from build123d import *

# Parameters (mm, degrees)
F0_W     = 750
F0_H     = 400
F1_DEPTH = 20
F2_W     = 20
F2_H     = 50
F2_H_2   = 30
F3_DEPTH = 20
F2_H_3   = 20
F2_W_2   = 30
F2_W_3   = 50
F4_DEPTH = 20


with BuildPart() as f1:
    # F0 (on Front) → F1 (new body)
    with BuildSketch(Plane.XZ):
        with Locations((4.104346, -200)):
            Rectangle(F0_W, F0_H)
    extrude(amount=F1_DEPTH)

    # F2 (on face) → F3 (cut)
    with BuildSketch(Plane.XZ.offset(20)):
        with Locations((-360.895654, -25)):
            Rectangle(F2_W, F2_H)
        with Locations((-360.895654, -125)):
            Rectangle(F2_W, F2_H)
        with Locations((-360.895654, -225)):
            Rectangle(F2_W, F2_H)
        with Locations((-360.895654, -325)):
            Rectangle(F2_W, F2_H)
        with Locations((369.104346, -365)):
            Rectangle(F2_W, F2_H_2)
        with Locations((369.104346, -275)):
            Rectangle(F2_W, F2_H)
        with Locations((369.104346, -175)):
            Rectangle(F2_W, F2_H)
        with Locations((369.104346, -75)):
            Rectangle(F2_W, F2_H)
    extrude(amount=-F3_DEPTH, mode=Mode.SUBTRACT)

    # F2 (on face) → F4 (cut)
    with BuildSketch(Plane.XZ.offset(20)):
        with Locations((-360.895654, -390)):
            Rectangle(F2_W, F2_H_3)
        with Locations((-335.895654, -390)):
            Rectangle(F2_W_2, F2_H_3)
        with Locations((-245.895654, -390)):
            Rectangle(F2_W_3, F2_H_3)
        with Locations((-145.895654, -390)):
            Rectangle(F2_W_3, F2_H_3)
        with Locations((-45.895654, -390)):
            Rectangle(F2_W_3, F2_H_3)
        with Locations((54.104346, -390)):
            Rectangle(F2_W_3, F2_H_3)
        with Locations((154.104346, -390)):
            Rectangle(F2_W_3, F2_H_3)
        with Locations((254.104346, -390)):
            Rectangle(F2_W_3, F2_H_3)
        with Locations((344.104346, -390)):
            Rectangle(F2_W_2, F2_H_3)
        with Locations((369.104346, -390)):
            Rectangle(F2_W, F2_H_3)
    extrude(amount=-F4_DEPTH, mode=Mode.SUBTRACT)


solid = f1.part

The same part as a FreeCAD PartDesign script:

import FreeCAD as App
import Part
import Sketcher

V = App.Vector

doc = App.newDocument("Part")
body = doc.addObject("PartDesign::Body", "Body")

sketch1 = body.newObject("Sketcher::SketchObject", "Sketch")
sketch1.AttachmentSupport = (doc.getObject("XZ_Plane"), [""])
sketch1.MapMode = "FlatFace"
sketch1.addGeometry([
    Part.LineSegment(V(-371, 0, 0), V(-371, -400, 0)),
    Part.LineSegment(V(-371, -400, 0), V(379, -400, 0)),
    Part.LineSegment(V(379, -400, 0), V(379, 0, 0)),
    Part.LineSegment(V(379, 0, 0), V(-371, 0, 0)),
], False)
sketch1.addConstraint([
    Sketcher.Constraint("Coincident", 0, 2, 1, 1),
    Sketcher.Constraint("Coincident", 1, 2, 2, 1),
    Sketcher.Constraint("Coincident", 2, 2, 3, 1),
    Sketcher.Constraint("Coincident", 3, 2, 0, 1),
    Sketcher.Constraint("Vertical", 0),
    Sketcher.Constraint("Horizontal", 1),
    Sketcher.Constraint("Vertical", 2),
    Sketcher.Constraint("Horizontal", 3),
    Sketcher.Constraint("PointOnObject", 2, 2, -1),
    Sketcher.Constraint("DistanceX", 1, 1, 1, 2, 750.0),
    Sketcher.Constraint("DistanceY", 0, 2, 0, 1, 400.0),
    Sketcher.Constraint("DistanceX", 0, 2, -1, 1, 370.895654),
])
pad1 = body.newObject("PartDesign::Pad", "Pad")
pad1.Profile = sketch1
pad1.Length = 20

sketch2 = body.newObject("Sketcher::SketchObject", "Sketch001")
sketch2.AttachmentSupport = (doc.getObject("XZ_Plane"), [""])
sketch2.MapMode = "FlatFace"
sketch2.AttachmentOffset = App.Placement(V(0, 0, 20), App.Rotation())
sketch2.addGeometry([
    Part.LineSegment(V(-371, 0, 0), V(-371, -50, 0)),
    Part.LineSegment(V(-371, -50, 0), V(-351, -50, 0)),
    Part.LineSegment(V(-351, -50, 0), V(-351, 0, 0)),
    Part.LineSegment(V(-351, 0, 0), V(-371, 0, 0)),
    Part.LineSegment(V(-371, -100, 0), V(-371, -150, 0)),
    Part.LineSegment(V(-371, -150, 0), V(-351, -150, 0)),
    Part.LineSegment(V(-351, -150, 0), V(-351, -100, 0)),
    Part.LineSegment(V(-351, -100, 0), V(-371, -100, 0)),
    Part.LineSegment(V(-371, -200, 0), V(-371, -250, 0)),
    Part.LineSegment(V(-371, -250, 0), V(-351, -250, 0)),
    Part.LineSegment(V(-351, -250, 0), V(-351, -200, 0)),
    Part.LineSegment(V(-351, -200, 0), V(-371, -200, 0)),
    Part.LineSegment(V(-371, -300, 0), V(-371, -350, 0)),
    Part.LineSegment(V(-371, -350, 0), V(-351, -350, 0)),
    Part.LineSegment(V(-351, -350, 0), V(-351, -300, 0)),
    Part.LineSegment(V(-351, -300, 0), V(-371, -300, 0)),
    Part.LineSegment(V(359, -350, 0), V(359, -380, 0)),
    Part.LineSegment(V(359, -380, 0), V(379, -380, 0)),
    Part.LineSegment(V(379, -380, 0), V(379, -350, 0)),
    Part.LineSegment(V(379, -350, 0), V(359, -350, 0)),
    Part.LineSegment(V(359, -250, 0), V(359, -300, 0)),
    Part.LineSegment(V(359, -300, 0), V(379, -300, 0)),
    Part.LineSegment(V(379, -300, 0), V(379, -250, 0)),
    Part.LineSegment(V(379, -250, 0), V(359, -250, 0)),
    Part.LineSegment(V(359, -150, 0), V(359, -200, 0)),
    Part.LineSegment(V(359, -200, 0), V(379, -200, 0)),
    Part.LineSegment(V(379, -200, 0), V(379, -150, 0)),
    Part.LineSegment(V(379, -150, 0), V(359, -150, 0)),
    Part.LineSegment(V(359, -50, 0), V(359, -100, 0)),
    Part.LineSegment(V(359, -100, 0), V(379, -100, 0)),
    Part.LineSegment(V(379, -100, 0), V(379, -50, 0)),
    Part.LineSegment(V(379, -50, 0), V(359, -50, 0)),
], False)
sketch2.addConstraint([
    Sketcher.Constraint("Coincident", 0, 2, 1, 1),
    Sketcher.Constraint("Coincident", 1, 2, 2, 1),
    Sketcher.Constraint("Coincident", 2, 2, 3, 1),
    Sketcher.Constraint("Coincident", 3, 2, 0, 1),
    Sketcher.Constraint("Coincident", 4, 2, 5, 1),
    Sketcher.Constraint("Coincident", 5, 2, 6, 1),
    Sketcher.Constraint("Coincident", 6, 2, 7, 1),
    Sketcher.Constraint("Coincident", 7, 2, 4, 1),
    Sketcher.Constraint("Coincident", 8, 2, 9, 1),
    Sketcher.Constraint("Coincident", 9, 2, 10, 1),
    Sketcher.Constraint("Coincident", 10, 2, 11, 1),
    Sketcher.Constraint("Coincident", 11, 2, 8, 1),
    Sketcher.Constraint("Coincident", 12, 2, 13, 1),
    Sketcher.Constraint("Coincident", 13, 2, 14, 1),
    Sketcher.Constraint("Coincident", 14, 2, 15, 1),
    Sketcher.Constraint("Coincident", 15, 2, 12, 1),
    Sketcher.Constraint("Coincident", 16, 2, 17, 1),
    Sketcher.Constraint("Coincident", 17, 2, 18, 1),
    Sketcher.Constraint("Coincident", 18, 2, 19, 1),
    Sketcher.Constraint("Coincident", 19, 2, 16, 1),
    Sketcher.Constraint("Coincident", 20, 2, 21, 1),
    Sketcher.Constraint("Coincident", 21, 2, 22, 1),
    Sketcher.Constraint("Coincident", 22, 2, 23, 1),
    Sketcher.Constraint("Coincident", 23, 2, 20, 1),
    Sketcher.Constraint("Coincident", 24, 2, 25, 1),
    Sketcher.Constraint("Coincident", 25, 2, 26, 1),
    Sketcher.Constraint("Coincident", 26, 2, 27, 1),
    Sketcher.Constraint("Coincident", 27, 2, 24, 1),
    Sketcher.Constraint("Coincident", 28, 2, 29, 1),
    Sketcher.Constraint("Coincident", 29, 2, 30, 1),
    Sketcher.Constraint("Coincident", 30, 2, 31, 1),
    Sketcher.Constraint("Coincident", 31, 2, 28, 1),
    Sketcher.Constraint("Vertical", 0),
    Sketcher.Constraint("Horizontal", 1),
    Sketcher.Constraint("Vertical", 2),
    Sketcher.Constraint("Horizontal", 3),
    Sketcher.Constraint("Vertical", 4),
    Sketcher.Constraint("Horizontal", 5),
    Sketcher.Constraint("Vertical", 6),
    Sketcher.Constraint("Horizontal", 7),
    Sketcher.Constraint("Vertical", 8),
    Sketcher.Constraint("Horizontal", 9),
    Sketcher.Constraint("Vertical", 10),
    Sketcher.Constraint("Horizontal", 11),
    Sketcher.Constraint("Vertical", 12),
    Sketcher.Constraint("Horizontal", 13),
    Sketcher.Constraint("Vertical", 14),
    Sketcher.Constraint("Horizontal", 15),
    Sketcher.Constraint("Vertical", 16),
    Sketcher.Constraint("Horizontal", 17),
    Sketcher.Constraint("Vertical", 18),
    Sketcher.Constraint("Horizontal", 19),
    Sketcher.Constraint("Vertical", 20),
    Sketcher.Constraint("Horizontal", 21),
    Sketcher.Constraint("Vertical", 22),
    Sketcher.Constraint("Horizontal", 23),
    Sketcher.Constraint("Vertical", 24),
    Sketcher.Constraint("Horizontal", 25),
    Sketcher.Constraint("Vertical", 26),
    Sketcher.Constraint("Horizontal", 27),
    Sketcher.Constraint("Vertical", 28),
    Sketcher.Constraint("Horizontal", 29),
    Sketcher.Constraint("Vertical", 30),
    Sketcher.Constraint("Horizontal", 31),
    Sketcher.Constraint("PointOnObject", 2, 2, -1),
    Sketcher.Constraint("Horizontal", 13, 2, 18, 2),
    Sketcher.Constraint("Horizontal", 15, 2, 20, 2),
    Sketcher.Constraint("Horizontal", 9, 2, 22, 2),
    Sketcher.Constraint("Horizontal", 11, 2, 24, 2),
    Sketcher.Constraint("Horizontal", 5, 2, 26, 2),
    Sketcher.Constraint("Horizontal", 7, 2, 28, 2),
    Sketcher.Constraint("Horizontal", 1, 2, 30, 2),
    Sketcher.Constraint("Vertical", 3, 2, 4, 2),
    Sketcher.Constraint("Vertical", 2, 2, 5, 2),
    Sketcher.Constraint("Vertical", 7, 2, 8, 2),
    Sketcher.Constraint("Vertical", 6, 2, 9, 2),
    Sketcher.Constraint("Vertical", 11, 2, 12, 2),
    Sketcher.Constraint("Vertical", 10, 2, 13, 2),
    Sketcher.Constraint("Vertical", 19, 2, 20, 2),
    Sketcher.Constraint("Vertical", 18, 2, 21, 2),
    Sketcher.Constraint("Vertical", 23, 2, 24, 2),
    Sketcher.Constraint("Vertical", 22, 2, 25, 2),
    Sketcher.Constraint("Vertical", 27, 2, 28, 2),
    Sketcher.Constraint("Vertical", 26, 2, 29, 2),
    Sketcher.Constraint("Equal", 15, 17),
    Sketcher.Constraint("Equal", 2, 4),
    Sketcher.Constraint("Equal", 6, 8),
    Sketcher.Constraint("Equal", 10, 12),
    Sketcher.Constraint("Equal", 14, 20),
    Sketcher.Constraint("Equal", 22, 24),
    Sketcher.Constraint("Equal", 26, 28),
    Sketcher.Constraint("DistanceX", 1, 1, 1, 2, 20.0),
    Sketcher.Constraint("DistanceY", 0, 2, 0, 1, 50.0),
    Sketcher.Constraint("DistanceY", 16, 2, 16, 1, 30.0),
    Sketcher.Constraint("DistanceX", 13, 2, 16, 2, 710.0),
    Sketcher.Constraint("DistanceX", 0, 2, -1, 1, 370.895654),
])
pocket1 = body.newObject("PartDesign::Pocket", "Pocket")
pocket1.Profile = sketch2
pocket1.Length = 20

sketch3 = body.newObject("Sketcher::SketchObject", "Sketch002")
sketch3.AttachmentSupport = (doc.getObject("XZ_Plane"), [""])
sketch3.MapMode = "FlatFace"
sketch3.AttachmentOffset = App.Placement(V(0, 0, 20), App.Rotation())
sketch3.addGeometry([
    Part.LineSegment(V(-371, -380, 0), V(-371, -400, 0)),
    Part.LineSegment(V(-371, -400, 0), V(-321, -400, 0)),
    Part.LineSegment(V(-321, -400, 0), V(-321, -380, 0)),
    Part.LineSegment(V(-321, -380, 0), V(-371, -380, 0)),
    Part.LineSegment(V(-271, -380, 0), V(-271, -400, 0)),
    Part.LineSegment(V(-271, -400, 0), V(-221, -400, 0)),
    Part.LineSegment(V(-221, -400, 0), V(-221, -380, 0)),
    Part.LineSegment(V(-221, -380, 0), V(-271, -380, 0)),
    Part.LineSegment(V(-171, -380, 0), V(-171, -400, 0)),
    Part.LineSegment(V(-171, -400, 0), V(-121, -400, 0)),
    Part.LineSegment(V(-121, -400, 0), V(-121, -380, 0)),
    Part.LineSegment(V(-121, -380, 0), V(-171, -380, 0)),
    Part.LineSegment(V(-71, -380, 0), V(-71, -400, 0)),
    Part.LineSegment(V(-71, -400, 0), V(-21, -400, 0)),
    Part.LineSegment(V(-21, -400, 0), V(-21, -380, 0)),
    Part.LineSegment(V(-21, -380, 0), V(-71, -380, 0)),
    Part.LineSegment(V(29, -380, 0), V(29, -400, 0)),
    Part.LineSegment(V(29, -400, 0), V(79, -400, 0)),
    Part.LineSegment(V(79, -400, 0), V(79, -380, 0)),
    Part.LineSegment(V(79, -380, 0), V(29, -380, 0)),
    Part.LineSegment(V(129, -380, 0), V(129, -400, 0)),
    Part.LineSegment(V(129, -400, 0), V(179, -400, 0)),
    Part.LineSegment(V(179, -400, 0), V(179, -380, 0)),
    Part.LineSegment(V(179, -380, 0), V(129, -380, 0)),
    Part.LineSegment(V(229, -380, 0), V(229, -400, 0)),
    Part.LineSegment(V(229, -400, 0), V(279, -400, 0)),
    Part.LineSegment(V(279, -400, 0), V(279, -380, 0)),
    Part.LineSegment(V(279, -380, 0), V(229, -380, 0)),
    Part.LineSegment(V(329, -380, 0), V(329, -400, 0)),
    Part.LineSegment(V(329, -400, 0), V(379, -400, 0)),
    Part.LineSegment(V(379, -400, 0), V(379, -380, 0)),
    Part.LineSegment(V(379, -380, 0), V(329, -380, 0)),
], False)
sketch3.addConstraint([
    Sketcher.Constraint("Coincident", 0, 2, 1, 1),
    Sketcher.Constraint("Coincident", 1, 2, 2, 1),
    Sketcher.Constraint("Coincident", 2, 2, 3, 1),
    Sketcher.Constraint("Coincident", 3, 2, 0, 1),
    Sketcher.Constraint("Coincident", 4, 2, 5, 1),
    Sketcher.Constraint("Coincident", 5, 2, 6, 1),
    Sketcher.Constraint("Coincident", 6, 2, 7, 1),
    Sketcher.Constraint("Coincident", 7, 2, 4, 1),
    Sketcher.Constraint("Coincident", 8, 2, 9, 1),
    Sketcher.Constraint("Coincident", 9, 2, 10, 1),
    Sketcher.Constraint("Coincident", 10, 2, 11, 1),
    Sketcher.Constraint("Coincident", 11, 2, 8, 1),
    Sketcher.Constraint("Coincident", 12, 2, 13, 1),
    Sketcher.Constraint("Coincident", 13, 2, 14, 1),
    Sketcher.Constraint("Coincident", 14, 2, 15, 1),
    Sketcher.Constraint("Coincident", 15, 2, 12, 1),
    Sketcher.Constraint("Coincident", 16, 2, 17, 1),
    Sketcher.Constraint("Coincident", 17, 2, 18, 1),
    Sketcher.Constraint("Coincident", 18, 2, 19, 1),
    Sketcher.Constraint("Coincident", 19, 2, 16, 1),
    Sketcher.Constraint("Coincident", 20, 2, 21, 1),
    Sketcher.Constraint("Coincident", 21, 2, 22, 1),
    Sketcher.Constraint("Coincident", 22, 2, 23, 1),
    Sketcher.Constraint("Coincident", 23, 2, 20, 1),
    Sketcher.Constraint("Coincident", 24, 2, 25, 1),
    Sketcher.Constraint("Coincident", 25, 2, 26, 1),
    Sketcher.Constraint("Coincident", 26, 2, 27, 1),
    Sketcher.Constraint("Coincident", 27, 2, 24, 1),
    Sketcher.Constraint("Coincident", 28, 2, 29, 1),
    Sketcher.Constraint("Coincident", 29, 2, 30, 1),
    Sketcher.Constraint("Coincident", 30, 2, 31, 1),
    Sketcher.Constraint("Coincident", 31, 2, 28, 1),
    Sketcher.Constraint("Vertical", 0),
    Sketcher.Constraint("Horizontal", 1),
    Sketcher.Constraint("Vertical", 2),
    Sketcher.Constraint("Horizontal", 3),
    Sketcher.Constraint("Vertical", 4),
    Sketcher.Constraint("Horizontal", 5),
    Sketcher.Constraint("Vertical", 6),
    Sketcher.Constraint("Horizontal", 7),
    Sketcher.Constraint("Vertical", 8),
    Sketcher.Constraint("Horizontal", 9),
    Sketcher.Constraint("Vertical", 10),
    Sketcher.Constraint("Horizontal", 11),
    Sketcher.Constraint("Vertical", 12),
    Sketcher.Constraint("Horizontal", 13),
    Sketcher.Constraint("Vertical", 14),
    Sketcher.Constraint("Horizontal", 15),
    Sketcher.Constraint("Vertical", 16),
    Sketcher.Constraint("Horizontal", 17),
    Sketcher.Constraint("Vertical", 18),
    Sketcher.Constraint("Horizontal", 19),
    Sketcher.Constraint("Vertical", 20),
    Sketcher.Constraint("Horizontal", 21),
    Sketcher.Constraint("Vertical", 22),
    Sketcher.Constraint("Horizontal", 23),
    Sketcher.Constraint("Vertical", 24),
    Sketcher.Constraint("Horizontal", 25),
    Sketcher.Constraint("Vertical", 26),
    Sketcher.Constraint("Horizontal", 27),
    Sketcher.Constraint("Vertical", 28),
    Sketcher.Constraint("Horizontal", 29),
    Sketcher.Constraint("Vertical", 30),
    Sketcher.Constraint("Horizontal", 31),
    Sketcher.Constraint("Horizontal", 1, 2, 4, 2),
    Sketcher.Constraint("Horizontal", 3, 2, 6, 2),
    Sketcher.Constraint("Horizontal", 5, 2, 8, 2),
    Sketcher.Constraint("Horizontal", 7, 2, 10, 2),
    Sketcher.Constraint("Horizontal", 9, 2, 12, 2),
    Sketcher.Constraint("Horizontal", 11, 2, 14, 2),
    Sketcher.Constraint("Horizontal", 13, 2, 16, 2),
    Sketcher.Constraint("Horizontal", 15, 2, 18, 2),
    Sketcher.Constraint("Horizontal", 17, 2, 20, 2),
    Sketcher.Constraint("Horizontal", 19, 2, 22, 2),
    Sketcher.Constraint("Horizontal", 21, 2, 24, 2),
    Sketcher.Constraint("Horizontal", 23, 2, 26, 2),
    Sketcher.Constraint("Horizontal", 25, 2, 28, 2),
    Sketcher.Constraint("Horizontal", 27, 2, 30, 2),
    Sketcher.Constraint("Equal", 3, 5),
    Sketcher.Constraint("Equal", 7, 9),
    Sketcher.Constraint("Equal", 11, 13),
    Sketcher.Constraint("Equal", 15, 17),
    Sketcher.Constraint("Equal", 19, 21),
    Sketcher.Constraint("Equal", 23, 25),
    Sketcher.Constraint("Equal", 27, 29),
    Sketcher.Constraint("DistanceX", 1, 1, 1, 2, 50.0),
    Sketcher.Constraint("DistanceY", 0, 2, 0, 1, 20.0),
    Sketcher.Constraint("DistanceY", 0, 2, -1, 1, 400.0),
    Sketcher.Constraint("DistanceX", 1, 2, 4, 2, 50.0),
    Sketcher.Constraint("DistanceX", 5, 2, 8, 2, 50.0),
    Sketcher.Constraint("DistanceX", 9, 2, 12, 2, 50.0),
    Sketcher.Constraint("DistanceX", 13, 2, 16, 2, 50.0),
    Sketcher.Constraint("DistanceX", 17, 2, 20, 2, 50.0),
    Sketcher.Constraint("DistanceX", 21, 2, 24, 2, 50.0),
    Sketcher.Constraint("DistanceX", 25, 2, 28, 2, 50.0),
    Sketcher.Constraint("DistanceX", 0, 2, -1, 1, 370.895654),
])
pocket2 = body.newObject("PartDesign::Pocket", "Pocket001")
pocket2.Profile = sketch3
pocket2.Length = 20

doc.recompute()
